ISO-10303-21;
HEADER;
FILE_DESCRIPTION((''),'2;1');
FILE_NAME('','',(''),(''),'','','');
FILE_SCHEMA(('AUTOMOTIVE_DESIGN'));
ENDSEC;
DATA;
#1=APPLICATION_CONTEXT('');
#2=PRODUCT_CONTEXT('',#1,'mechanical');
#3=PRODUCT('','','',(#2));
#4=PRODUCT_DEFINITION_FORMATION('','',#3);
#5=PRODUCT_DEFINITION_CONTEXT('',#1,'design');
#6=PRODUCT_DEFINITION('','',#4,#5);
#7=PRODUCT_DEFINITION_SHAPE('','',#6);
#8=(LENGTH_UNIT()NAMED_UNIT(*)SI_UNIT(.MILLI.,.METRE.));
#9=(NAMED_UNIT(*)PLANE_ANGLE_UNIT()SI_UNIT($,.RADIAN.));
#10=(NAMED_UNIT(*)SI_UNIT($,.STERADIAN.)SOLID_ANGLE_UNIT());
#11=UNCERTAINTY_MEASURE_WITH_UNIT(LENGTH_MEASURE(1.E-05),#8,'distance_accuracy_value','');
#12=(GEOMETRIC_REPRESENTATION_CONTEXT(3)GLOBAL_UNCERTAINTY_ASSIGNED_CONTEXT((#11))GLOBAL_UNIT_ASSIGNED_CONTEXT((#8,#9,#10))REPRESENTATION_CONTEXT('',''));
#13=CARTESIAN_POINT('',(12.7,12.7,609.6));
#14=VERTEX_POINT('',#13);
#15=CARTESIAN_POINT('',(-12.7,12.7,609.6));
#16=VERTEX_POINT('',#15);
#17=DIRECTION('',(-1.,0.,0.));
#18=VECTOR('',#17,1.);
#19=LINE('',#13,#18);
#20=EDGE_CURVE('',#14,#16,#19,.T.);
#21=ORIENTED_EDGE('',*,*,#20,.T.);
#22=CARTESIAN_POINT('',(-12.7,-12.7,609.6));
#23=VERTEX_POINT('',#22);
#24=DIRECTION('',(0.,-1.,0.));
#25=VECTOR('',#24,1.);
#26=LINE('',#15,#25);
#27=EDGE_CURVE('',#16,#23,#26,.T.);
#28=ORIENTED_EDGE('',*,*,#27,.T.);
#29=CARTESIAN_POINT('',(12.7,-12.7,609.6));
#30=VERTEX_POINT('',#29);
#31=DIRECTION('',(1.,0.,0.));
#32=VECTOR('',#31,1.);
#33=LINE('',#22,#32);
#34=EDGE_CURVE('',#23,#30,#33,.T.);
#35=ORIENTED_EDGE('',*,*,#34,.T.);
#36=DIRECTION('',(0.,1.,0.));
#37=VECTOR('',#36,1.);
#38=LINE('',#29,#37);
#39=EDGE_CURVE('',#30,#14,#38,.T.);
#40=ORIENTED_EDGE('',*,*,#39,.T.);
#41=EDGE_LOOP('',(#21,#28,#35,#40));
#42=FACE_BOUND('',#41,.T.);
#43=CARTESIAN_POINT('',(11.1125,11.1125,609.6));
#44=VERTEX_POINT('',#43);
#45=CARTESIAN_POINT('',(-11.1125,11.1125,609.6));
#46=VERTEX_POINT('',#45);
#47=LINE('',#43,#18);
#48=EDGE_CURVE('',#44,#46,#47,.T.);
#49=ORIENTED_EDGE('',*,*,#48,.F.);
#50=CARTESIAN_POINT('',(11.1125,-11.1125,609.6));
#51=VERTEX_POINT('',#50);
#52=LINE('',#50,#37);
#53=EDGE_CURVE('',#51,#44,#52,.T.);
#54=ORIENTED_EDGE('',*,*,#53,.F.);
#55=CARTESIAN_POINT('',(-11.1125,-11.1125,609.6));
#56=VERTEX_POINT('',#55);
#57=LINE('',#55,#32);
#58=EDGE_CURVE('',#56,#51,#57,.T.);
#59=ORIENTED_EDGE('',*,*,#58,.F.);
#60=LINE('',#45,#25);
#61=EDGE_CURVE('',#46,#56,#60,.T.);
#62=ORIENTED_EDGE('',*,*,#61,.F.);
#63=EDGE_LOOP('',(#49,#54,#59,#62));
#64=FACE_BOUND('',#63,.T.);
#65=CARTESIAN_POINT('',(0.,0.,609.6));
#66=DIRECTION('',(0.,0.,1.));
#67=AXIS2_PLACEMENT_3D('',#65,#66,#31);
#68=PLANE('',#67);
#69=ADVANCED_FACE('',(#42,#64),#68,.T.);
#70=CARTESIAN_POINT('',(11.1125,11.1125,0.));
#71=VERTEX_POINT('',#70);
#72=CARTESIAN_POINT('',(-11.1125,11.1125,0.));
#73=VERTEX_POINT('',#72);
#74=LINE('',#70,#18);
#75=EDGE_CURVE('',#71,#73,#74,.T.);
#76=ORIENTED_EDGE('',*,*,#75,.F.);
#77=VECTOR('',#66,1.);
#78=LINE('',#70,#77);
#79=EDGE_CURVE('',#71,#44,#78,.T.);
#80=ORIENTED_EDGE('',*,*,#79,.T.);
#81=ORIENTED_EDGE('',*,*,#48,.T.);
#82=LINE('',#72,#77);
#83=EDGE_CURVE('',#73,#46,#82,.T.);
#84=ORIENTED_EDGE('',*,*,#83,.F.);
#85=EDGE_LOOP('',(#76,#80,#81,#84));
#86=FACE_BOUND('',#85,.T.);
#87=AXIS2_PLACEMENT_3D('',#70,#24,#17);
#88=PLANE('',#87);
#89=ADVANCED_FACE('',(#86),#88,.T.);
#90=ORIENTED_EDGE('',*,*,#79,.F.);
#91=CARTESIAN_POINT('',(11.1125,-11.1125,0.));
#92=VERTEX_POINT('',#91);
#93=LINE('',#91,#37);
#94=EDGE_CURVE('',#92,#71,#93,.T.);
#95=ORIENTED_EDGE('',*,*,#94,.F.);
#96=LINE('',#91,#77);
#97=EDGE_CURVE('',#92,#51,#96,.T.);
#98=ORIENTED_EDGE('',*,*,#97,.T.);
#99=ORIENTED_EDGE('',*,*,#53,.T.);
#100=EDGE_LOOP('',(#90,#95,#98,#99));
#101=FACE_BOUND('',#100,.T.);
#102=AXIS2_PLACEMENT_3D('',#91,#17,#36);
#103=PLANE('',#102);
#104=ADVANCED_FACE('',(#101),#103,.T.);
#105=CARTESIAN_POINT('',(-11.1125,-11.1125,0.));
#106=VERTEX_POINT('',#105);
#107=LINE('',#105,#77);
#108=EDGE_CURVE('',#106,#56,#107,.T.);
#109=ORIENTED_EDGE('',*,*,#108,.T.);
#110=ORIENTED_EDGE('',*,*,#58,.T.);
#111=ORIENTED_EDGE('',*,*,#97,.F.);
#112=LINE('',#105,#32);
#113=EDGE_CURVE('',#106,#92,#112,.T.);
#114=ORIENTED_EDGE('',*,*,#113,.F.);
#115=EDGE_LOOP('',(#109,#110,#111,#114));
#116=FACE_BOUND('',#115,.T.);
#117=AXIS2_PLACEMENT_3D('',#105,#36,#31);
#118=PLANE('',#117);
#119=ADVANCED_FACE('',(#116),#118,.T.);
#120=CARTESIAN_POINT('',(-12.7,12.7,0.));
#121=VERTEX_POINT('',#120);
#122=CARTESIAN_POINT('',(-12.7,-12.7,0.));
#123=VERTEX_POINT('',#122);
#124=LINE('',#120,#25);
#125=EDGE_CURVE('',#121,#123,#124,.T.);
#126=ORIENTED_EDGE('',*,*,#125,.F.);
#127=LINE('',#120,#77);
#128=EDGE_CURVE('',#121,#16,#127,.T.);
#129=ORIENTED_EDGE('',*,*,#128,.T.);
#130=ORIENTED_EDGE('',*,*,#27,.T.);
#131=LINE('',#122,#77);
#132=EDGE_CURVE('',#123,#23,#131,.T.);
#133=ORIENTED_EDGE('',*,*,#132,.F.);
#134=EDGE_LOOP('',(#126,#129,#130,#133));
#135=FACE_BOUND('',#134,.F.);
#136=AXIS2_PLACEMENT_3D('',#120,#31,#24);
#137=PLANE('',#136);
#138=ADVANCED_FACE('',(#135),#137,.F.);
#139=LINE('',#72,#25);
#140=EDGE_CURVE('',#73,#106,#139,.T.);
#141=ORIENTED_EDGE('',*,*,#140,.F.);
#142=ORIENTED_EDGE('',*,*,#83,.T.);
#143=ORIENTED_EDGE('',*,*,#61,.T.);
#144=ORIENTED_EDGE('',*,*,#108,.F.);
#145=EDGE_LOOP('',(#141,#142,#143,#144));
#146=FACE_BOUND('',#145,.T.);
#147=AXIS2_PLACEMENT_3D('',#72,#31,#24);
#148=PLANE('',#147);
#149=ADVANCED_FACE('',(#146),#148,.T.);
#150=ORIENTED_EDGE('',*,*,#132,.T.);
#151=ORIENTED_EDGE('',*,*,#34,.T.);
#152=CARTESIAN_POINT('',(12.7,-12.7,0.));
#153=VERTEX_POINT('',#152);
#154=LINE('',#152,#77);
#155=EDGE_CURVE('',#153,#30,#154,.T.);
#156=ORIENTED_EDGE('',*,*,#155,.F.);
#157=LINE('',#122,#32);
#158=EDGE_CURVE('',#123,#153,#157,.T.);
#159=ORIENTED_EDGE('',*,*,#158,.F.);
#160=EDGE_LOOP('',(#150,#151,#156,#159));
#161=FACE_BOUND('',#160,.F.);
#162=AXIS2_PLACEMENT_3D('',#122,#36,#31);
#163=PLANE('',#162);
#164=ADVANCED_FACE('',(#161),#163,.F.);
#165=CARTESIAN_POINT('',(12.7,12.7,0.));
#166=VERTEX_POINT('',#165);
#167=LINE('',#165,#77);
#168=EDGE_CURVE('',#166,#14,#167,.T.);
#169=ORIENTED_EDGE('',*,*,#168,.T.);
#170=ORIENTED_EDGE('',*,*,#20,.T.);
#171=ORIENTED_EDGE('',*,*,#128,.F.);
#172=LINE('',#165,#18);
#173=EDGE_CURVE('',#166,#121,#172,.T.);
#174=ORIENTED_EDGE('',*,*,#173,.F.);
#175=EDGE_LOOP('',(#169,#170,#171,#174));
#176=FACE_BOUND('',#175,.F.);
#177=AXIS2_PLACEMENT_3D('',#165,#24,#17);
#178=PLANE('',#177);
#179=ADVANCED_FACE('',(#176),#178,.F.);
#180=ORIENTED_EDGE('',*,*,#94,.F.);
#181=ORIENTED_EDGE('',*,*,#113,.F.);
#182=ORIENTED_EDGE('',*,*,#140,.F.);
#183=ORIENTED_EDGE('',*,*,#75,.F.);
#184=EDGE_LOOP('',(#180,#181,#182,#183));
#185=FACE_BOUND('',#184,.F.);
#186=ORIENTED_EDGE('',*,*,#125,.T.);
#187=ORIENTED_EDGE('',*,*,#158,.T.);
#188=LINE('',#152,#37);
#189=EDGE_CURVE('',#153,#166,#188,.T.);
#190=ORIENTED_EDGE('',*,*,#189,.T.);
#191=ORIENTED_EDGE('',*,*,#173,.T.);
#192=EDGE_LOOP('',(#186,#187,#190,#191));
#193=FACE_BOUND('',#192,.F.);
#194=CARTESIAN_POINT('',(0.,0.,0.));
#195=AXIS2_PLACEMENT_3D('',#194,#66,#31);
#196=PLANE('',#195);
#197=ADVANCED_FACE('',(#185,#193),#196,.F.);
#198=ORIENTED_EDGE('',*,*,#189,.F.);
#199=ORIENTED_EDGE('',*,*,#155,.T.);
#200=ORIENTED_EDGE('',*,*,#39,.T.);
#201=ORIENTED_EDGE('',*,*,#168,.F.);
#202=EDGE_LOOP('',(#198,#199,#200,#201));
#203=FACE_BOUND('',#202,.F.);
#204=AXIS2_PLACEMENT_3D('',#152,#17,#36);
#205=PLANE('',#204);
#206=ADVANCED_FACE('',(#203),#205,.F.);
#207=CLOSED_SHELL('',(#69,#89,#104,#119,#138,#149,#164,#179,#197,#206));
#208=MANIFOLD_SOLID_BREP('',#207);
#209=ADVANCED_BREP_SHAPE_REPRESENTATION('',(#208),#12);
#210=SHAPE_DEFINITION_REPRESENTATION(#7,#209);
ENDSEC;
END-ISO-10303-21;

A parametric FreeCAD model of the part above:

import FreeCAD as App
import Part
import Sketcher
Q = App.Units.Quantity

doc = App.newDocument("Part")
params = doc.addObject("Spreadsheet::Sheet", "Params")
for row, (alias, value) in enumerate([
    ("sketch1_width", "1 in"),
    ("sketch1_width2", "0.875 in"),
    ("pad1_length", "24 in"),
], start=1):
    params.set(f"A{row}", alias)
    params.set(f"B{row}", "=" + value)
    params.setAlias(f"B{row}", alias)

body = doc.addObject("PartDesign::Body", "Body")

# Sketch on XY plane
sketch1 = doc.addObject("Sketcher::SketchObject", "Sketch")
body.addObject(sketch1)
sketch1.AttachmentSupport = (doc.XY_Plane, [""])
sketch1.MapMode = "FlatFace"
sketch1.addGeometry(Part.LineSegment(App.Vector(-13, 13, 0), App.Vector(-13, -13, 0)), False)
sketch1.addGeometry(Part.LineSegment(App.Vector(-13, -13, 0), App.Vector(13, -13, 0)), False)
sketch1.addGeometry(Part.LineSegment(App.Vector(13, -13, 0), App.Vector(13, 13, 0)), False)
sketch1.addGeometry(Part.LineSegment(App.Vector(13, 13, 0), App.Vector(-13, 13, 0)), False)
sketch1.addGeometry(Part.LineSegment(App.Vector(11, -11, 0), App.Vector(-11, -11, 0)), False)
sketch1.addGeometry(Part.LineSegment(App.Vector(-11, -11, 0), App.Vector(-11, 11, 0)), False)
sketch1.addGeometry(Part.LineSegment(App.Vector(-11, 11, 0), App.Vector(11, 11, 0)), False)
sketch1.addGeometry(Part.LineSegment(App.Vector(11, 11, 0), App.Vector(11, -11, 0)), False)
sketch1.addConstraint(Sketcher.Constraint("Coincident", 0, 2, 1, 1))
sketch1.addConstraint(Sketcher.Constraint("Coincident", 1, 2, 2, 1))
sketch1.addConstraint(Sketcher.Constraint("Coincident", 2, 2, 3, 1))
sketch1.addConstraint(Sketcher.Constraint("Coincident", 3, 2, 0, 1))
sketch1.addConstraint(Sketcher.Constraint("Coincident", 4, 2, 5, 1))
sketch1.addConstraint(Sketcher.Constraint("Coincident", 5, 2, 6, 1))
sketch1.addConstraint(Sketcher.Constraint("Coincident", 6, 2, 7, 1))
sketch1.addConstraint(Sketcher.Constraint("Coincident", 7, 2, 4, 1))
sketch1.addConstraint(Sketcher.Constraint("Vertical", 0))
sketch1.addConstraint(Sketcher.Constraint("Horizontal", 1))
sketch1.addConstraint(Sketcher.Constraint("Vertical", 2))
sketch1.addConstraint(Sketcher.Constraint("Horizontal", 3))
sketch1.addConstraint(Sketcher.Constraint("Horizontal", 4))
sketch1.addConstraint(Sketcher.Constraint("Vertical", 5))
sketch1.addConstraint(Sketcher.Constraint("Horizontal", 6))
sketch1.addConstraint(Sketcher.Constraint("Vertical", 7))
sketch1.addConstraint(Sketcher.Constraint("Symmetric", 0, 2, 2, 2, -1, 1))
sketch1.addConstraint(Sketcher.Constraint("Symmetric", 4, 2, 6, 2, -1, 1))
sketch1.addConstraint(Sketcher.Constraint("Equal", 3, 0))
sketch1.addConstraint(Sketcher.Constraint("Equal", 6, 5))
sketch1.addConstraint(Sketcher.Constraint("DistanceX", 1, 1, 1, 2, Q("1 in")))
sketch1.addConstraint(Sketcher.Constraint("DistanceX", 4, 2, 4, 1, Q("0.875 in")))
sketch1.setExpression("Constraints[20]", "Params.sketch1_width")
sketch1.setExpression("Constraints[21]", "Params.sketch1_width2")
pad1 = doc.addObject("PartDesign::Pad", "Pad")
body.addObject(pad1)
pad1.Profile = sketch1
pad1.setExpression("Length", "Params.pad1_length")

doc.recompute()
